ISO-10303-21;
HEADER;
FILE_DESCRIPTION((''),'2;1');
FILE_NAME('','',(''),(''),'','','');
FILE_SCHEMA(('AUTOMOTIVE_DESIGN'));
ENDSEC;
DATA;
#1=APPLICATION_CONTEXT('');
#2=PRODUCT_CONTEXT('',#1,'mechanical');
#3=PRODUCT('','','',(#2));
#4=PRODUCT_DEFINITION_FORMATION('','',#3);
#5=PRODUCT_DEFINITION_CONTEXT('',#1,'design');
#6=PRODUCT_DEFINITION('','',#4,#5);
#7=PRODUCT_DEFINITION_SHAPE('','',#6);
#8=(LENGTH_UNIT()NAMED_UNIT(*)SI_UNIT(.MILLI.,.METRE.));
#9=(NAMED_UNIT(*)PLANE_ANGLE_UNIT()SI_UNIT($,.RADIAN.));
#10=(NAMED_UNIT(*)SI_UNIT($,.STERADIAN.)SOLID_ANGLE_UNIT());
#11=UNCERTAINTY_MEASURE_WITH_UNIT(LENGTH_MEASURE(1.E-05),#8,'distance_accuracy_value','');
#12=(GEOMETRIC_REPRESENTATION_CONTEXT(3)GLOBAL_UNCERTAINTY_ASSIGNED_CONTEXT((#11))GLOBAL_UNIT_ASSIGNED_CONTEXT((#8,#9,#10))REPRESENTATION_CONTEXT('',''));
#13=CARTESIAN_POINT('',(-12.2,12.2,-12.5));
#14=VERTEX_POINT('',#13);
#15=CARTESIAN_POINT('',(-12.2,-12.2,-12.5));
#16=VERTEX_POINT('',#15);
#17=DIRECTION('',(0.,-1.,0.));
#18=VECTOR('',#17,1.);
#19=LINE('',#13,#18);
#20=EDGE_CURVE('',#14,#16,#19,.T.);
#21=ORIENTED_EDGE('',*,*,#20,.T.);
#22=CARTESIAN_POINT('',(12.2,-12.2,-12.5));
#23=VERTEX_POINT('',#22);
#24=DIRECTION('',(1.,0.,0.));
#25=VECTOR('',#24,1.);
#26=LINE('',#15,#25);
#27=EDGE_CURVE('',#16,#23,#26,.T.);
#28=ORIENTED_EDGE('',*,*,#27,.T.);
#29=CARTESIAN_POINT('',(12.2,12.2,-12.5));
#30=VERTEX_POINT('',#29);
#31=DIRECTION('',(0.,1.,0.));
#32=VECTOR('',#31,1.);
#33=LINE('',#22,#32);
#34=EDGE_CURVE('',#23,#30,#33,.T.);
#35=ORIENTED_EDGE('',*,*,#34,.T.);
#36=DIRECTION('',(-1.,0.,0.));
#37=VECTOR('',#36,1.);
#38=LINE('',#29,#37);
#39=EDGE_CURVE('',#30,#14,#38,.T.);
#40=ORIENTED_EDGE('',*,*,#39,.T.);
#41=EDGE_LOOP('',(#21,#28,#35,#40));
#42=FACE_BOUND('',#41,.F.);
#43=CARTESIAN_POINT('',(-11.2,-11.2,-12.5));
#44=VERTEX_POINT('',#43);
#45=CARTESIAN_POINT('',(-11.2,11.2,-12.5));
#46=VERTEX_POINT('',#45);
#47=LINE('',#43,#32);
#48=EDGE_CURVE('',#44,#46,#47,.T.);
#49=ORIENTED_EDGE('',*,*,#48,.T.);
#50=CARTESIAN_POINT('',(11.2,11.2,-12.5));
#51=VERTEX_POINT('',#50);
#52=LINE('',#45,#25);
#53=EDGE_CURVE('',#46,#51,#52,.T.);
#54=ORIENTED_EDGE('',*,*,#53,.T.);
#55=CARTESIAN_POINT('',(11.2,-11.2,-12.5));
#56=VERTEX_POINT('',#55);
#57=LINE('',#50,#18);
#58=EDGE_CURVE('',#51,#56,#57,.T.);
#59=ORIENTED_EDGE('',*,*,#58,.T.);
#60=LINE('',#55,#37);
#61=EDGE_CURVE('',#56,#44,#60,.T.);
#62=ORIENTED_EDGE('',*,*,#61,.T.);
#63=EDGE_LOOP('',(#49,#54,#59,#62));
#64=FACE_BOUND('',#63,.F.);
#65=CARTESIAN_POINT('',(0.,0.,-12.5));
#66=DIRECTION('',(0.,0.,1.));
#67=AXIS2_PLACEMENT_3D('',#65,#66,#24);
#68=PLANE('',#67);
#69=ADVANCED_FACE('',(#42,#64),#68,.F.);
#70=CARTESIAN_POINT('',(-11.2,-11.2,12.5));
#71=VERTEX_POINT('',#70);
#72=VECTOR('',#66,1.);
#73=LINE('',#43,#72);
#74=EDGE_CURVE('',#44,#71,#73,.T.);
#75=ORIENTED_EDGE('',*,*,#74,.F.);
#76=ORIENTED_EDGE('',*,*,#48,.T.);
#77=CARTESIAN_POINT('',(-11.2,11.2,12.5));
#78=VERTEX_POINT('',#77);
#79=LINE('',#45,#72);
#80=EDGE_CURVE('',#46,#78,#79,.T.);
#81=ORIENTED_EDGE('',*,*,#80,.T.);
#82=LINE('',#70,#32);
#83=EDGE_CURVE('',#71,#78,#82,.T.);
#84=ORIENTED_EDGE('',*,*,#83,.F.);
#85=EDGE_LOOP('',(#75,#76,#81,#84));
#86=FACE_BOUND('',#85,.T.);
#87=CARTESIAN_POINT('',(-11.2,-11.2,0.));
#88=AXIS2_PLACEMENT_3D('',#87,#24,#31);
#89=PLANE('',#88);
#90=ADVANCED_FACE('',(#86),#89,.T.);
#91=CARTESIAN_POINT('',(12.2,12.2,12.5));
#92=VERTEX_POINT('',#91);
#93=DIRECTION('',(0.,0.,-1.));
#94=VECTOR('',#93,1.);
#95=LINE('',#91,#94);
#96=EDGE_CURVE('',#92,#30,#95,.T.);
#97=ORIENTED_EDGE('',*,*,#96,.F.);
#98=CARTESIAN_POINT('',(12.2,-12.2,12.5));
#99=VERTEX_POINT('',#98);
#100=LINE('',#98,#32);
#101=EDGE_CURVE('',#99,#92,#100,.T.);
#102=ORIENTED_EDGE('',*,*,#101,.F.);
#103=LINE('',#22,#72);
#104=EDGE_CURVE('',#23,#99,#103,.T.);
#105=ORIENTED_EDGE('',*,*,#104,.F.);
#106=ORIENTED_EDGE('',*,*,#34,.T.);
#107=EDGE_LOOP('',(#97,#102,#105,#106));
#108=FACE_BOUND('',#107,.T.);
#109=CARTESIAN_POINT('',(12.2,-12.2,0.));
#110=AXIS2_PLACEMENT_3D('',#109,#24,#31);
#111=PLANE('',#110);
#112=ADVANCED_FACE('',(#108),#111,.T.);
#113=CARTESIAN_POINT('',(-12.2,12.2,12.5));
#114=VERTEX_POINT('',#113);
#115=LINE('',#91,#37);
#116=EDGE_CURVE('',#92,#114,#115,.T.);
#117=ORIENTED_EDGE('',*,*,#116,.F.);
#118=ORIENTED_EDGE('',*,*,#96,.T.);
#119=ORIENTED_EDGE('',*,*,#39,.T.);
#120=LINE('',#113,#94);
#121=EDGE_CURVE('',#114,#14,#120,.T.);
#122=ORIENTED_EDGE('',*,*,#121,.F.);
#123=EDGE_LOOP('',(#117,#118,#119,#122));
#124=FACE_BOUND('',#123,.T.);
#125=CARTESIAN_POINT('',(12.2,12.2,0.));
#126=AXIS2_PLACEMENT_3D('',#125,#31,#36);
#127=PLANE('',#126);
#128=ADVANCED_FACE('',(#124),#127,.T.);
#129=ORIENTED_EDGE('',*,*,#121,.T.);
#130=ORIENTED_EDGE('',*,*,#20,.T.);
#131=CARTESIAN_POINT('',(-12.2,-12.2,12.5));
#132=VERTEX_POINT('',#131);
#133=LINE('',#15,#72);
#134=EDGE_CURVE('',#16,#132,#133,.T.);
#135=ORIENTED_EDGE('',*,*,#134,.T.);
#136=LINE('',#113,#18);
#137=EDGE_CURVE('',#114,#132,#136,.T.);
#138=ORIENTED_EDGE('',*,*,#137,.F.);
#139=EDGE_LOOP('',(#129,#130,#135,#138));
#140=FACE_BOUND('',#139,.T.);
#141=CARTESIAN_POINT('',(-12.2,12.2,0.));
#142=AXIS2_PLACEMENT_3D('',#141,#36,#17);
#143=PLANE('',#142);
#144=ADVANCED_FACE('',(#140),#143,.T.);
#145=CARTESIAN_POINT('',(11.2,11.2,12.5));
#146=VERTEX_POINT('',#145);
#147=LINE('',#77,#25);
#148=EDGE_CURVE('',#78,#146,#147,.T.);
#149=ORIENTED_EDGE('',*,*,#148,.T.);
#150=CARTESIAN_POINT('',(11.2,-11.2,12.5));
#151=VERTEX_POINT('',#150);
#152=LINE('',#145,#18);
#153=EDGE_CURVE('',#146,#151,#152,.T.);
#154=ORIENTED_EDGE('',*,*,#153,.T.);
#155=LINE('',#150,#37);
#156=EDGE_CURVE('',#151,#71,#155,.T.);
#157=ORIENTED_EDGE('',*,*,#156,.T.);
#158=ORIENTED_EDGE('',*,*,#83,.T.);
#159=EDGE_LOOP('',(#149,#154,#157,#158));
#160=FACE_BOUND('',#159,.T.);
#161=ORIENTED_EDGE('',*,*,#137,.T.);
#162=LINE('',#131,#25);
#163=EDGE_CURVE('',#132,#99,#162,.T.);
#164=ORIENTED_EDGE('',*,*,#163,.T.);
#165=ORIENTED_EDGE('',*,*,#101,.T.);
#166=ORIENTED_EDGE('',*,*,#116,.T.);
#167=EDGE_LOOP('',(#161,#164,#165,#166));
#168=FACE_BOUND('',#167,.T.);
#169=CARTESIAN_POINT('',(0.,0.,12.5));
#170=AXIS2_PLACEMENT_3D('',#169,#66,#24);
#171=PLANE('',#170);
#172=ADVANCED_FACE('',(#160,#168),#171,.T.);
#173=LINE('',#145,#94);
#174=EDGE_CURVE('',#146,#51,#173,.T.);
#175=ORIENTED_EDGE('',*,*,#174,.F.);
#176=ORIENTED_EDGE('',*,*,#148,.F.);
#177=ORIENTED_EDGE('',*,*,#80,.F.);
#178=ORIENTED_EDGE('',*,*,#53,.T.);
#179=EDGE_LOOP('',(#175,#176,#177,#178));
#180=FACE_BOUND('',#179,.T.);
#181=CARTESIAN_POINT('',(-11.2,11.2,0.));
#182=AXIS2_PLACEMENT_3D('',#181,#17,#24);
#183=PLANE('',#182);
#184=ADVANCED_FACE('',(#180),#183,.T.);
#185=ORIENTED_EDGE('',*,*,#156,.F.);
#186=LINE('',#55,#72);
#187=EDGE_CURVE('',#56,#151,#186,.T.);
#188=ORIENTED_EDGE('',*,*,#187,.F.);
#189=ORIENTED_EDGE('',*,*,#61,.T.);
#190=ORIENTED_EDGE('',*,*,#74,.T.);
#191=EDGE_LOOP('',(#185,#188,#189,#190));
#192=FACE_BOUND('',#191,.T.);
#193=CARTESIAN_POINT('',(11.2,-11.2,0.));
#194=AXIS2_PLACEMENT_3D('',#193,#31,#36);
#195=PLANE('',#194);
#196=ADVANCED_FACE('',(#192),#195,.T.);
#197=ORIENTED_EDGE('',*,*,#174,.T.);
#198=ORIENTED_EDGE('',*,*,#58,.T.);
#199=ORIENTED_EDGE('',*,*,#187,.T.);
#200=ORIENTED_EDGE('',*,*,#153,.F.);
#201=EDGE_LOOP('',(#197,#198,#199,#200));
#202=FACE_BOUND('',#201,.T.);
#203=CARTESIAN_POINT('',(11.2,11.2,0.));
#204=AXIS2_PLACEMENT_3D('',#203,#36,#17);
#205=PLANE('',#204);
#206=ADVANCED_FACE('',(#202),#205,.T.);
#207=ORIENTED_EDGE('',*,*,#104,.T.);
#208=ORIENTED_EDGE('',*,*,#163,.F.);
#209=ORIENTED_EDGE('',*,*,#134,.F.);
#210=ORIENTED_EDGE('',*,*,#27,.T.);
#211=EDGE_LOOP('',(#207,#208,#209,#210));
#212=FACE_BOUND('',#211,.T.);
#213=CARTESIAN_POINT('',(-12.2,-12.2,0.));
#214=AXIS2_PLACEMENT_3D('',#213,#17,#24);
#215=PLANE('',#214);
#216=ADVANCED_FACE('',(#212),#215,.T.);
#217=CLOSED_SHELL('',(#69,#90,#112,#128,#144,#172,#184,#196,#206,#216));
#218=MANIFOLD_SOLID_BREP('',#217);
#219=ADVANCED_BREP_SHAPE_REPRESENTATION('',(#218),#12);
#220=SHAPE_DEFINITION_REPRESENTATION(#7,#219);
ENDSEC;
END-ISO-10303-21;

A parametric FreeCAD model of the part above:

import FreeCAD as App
import Part
import Sketcher
from FreeCAD import Vector
Q = App.Units.Quantity

doc = App.newDocument("Part")
body = doc.addObject("PartDesign::Body", "Body")

# Sketch on XY plane
sketch1 = body.newObject("Sketcher::SketchObject", "Sketch")
sketch1.AttachmentSupport = (doc.getObject("XY_Plane"), [""])
sketch1.MapMode = "FlatFace"
sketch1.addGeometry(Part.LineSegment(Vector(-12, 12, 0), Vector(-12, -12, 0)), False)
sketch1.addGeometry(Part.LineSegment(Vector(-12, -12, 0), Vector(12, -12, 0)), False)
sketch1.addGeometry(Part.LineSegment(Vector(12, -12, 0), Vector(12, 12, 0)), False)
sketch1.addGeometry(Part.LineSegment(Vector(12, 12, 0), Vector(-12, 12, 0)), False)
sketch1.addGeometry(Part.LineSegment(Vector(11, 11, 0), Vector(11, -11, 0)), False)
sketch1.addGeometry(Part.LineSegment(Vector(11, -11, 0), Vector(-11, -11, 0)), False)
sketch1.addGeometry(Part.LineSegment(Vector(-11, -11, 0), Vector(-11, 11, 0)), False)
sketch1.addGeometry(Part.LineSegment(Vector(-11, 11, 0), Vector(11, 11, 0)), False)
sketch1.addConstraint(Sketcher.Constraint("Coincident", 0, 2, 1, 1))
sketch1.addConstraint(Sketcher.Constraint("Coincident", 1, 2, 2, 1))
sketch1.addConstraint(Sketcher.Constraint("Coincident", 2, 2, 3, 1))
sketch1.addConstraint(Sketcher.Constraint("Coincident", 3, 2, 0, 1))
sketch1.addConstraint(Sketcher.Constraint("Coincident", 4, 2, 5, 1))
sketch1.addConstraint(Sketcher.Constraint("Coincident", 5, 2, 6, 1))
sketch1.addConstraint(Sketcher.Constraint("Coincident", 6, 2, 7, 1))
sketch1.addConstraint(Sketcher.Constraint("Coincident", 7, 2, 4, 1))
sketch1.addConstraint(Sketcher.Constraint("Vertical", 0))
sketch1.addConstraint(Sketcher.Constraint("Horizontal", 1))
sketch1.addConstraint(Sketcher.Constraint("Vertical", 2))
sketch1.addConstraint(Sketcher.Constraint("Horizontal", 3))
sketch1.addConstraint(Sketcher.Constraint("Vertical", 4))
sketch1.addConstraint(Sketcher.Constraint("Horizontal", 5))
sketch1.addConstraint(Sketcher.Constraint("Vertical", 6))
sketch1.addConstraint(Sketcher.Constraint("Horizontal", 7))
sketch1.addConstraint(Sketcher.Constraint("Symmetric", 0, 2, 2, 2, -1, 1))
sketch1.addConstraint(Sketcher.Constraint("Symmetric", 4, 2, 6, 2, -1, 1))
sketch1.addConstraint(Sketcher.Constraint("Equal", 3, 0))
sketch1.addConstraint(Sketcher.Constraint("Equal", 7, 4))
sketch1.addConstraint(Sketcher.Constraint("DistanceX", 1, 1, 1, 2, Q("24.4 mm")))
sketch1.addConstraint(Sketcher.Constraint("DistanceX", 5, 2, 5, 1, Q("22.4 mm")))
pad1 = body.newObject("PartDesign::Pad", "Pad")
pad1.Profile = sketch1
pad1.Length = 25
pad1.Midplane = True

doc.recompute()
